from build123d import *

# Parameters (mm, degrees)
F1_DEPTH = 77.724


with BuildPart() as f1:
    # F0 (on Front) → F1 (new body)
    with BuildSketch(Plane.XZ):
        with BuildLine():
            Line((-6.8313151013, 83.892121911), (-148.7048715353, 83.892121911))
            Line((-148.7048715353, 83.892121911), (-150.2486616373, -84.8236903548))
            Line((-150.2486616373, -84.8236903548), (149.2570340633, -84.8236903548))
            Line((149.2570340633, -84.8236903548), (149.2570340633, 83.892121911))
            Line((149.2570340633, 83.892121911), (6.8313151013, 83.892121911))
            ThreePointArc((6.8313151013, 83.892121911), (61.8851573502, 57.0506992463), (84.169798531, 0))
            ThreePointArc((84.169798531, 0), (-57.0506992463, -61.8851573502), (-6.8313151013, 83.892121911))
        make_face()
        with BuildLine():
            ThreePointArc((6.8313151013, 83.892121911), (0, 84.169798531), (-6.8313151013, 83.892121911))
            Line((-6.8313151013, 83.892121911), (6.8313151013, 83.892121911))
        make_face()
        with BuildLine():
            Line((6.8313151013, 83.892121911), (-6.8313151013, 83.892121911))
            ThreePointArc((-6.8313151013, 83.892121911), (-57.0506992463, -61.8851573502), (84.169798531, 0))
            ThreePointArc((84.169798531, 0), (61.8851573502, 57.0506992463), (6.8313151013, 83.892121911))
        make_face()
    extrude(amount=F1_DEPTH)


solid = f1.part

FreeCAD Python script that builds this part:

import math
import FreeCAD as App
import Part
import Sketcher
from FreeCAD import Vector
Q = App.Units.Quantity

doc = App.newDocument("Part")
body = doc.addObject("PartDesign::Body", "Body")

# Sketch on XZ plane
sketch1 = doc.addObject("Sketcher::SketchObject", "Sketch")
body.addObject(sketch1)
sketch1.AttachmentSupport = (doc.XZ_Plane, [""])
sketch1.MapMode = "FlatFace"
sketch1.addGeometry([
    Part.LineSegment(Vector(-6.831315, 83.892122, 0), Vector(-148.704872, 83.892122, 0)),  # 0
    Part.LineSegment(Vector(-148.704872, 83.892122, 0), Vector(-150.248662, -84.82369, 0)),  # 1
    Part.LineSegment(Vector(-150.248662, -84.82369, 0), Vector(149.257034, -84.82369, 0)),  # 2
    Part.LineSegment(Vector(149.257034, -84.82369, 0), Vector(149.257034, 83.892122, 0)),  # 3
    Part.LineSegment(Vector(149.257034, 83.892122, 0), Vector(6.831315, 83.892122, 0)),  # 4
    Part.ArcOfCircle(Part.Circle(Vector(0, 0, 0), Vector(0, 0, 1), 84.169799), math.radians(85.34469), math.radians(94.65531)),  # 5
], False)
sketch1.addConstraint([
    Sketcher.Constraint("Coincident", 0, 2, 1, 1),
    Sketcher.Constraint("Coincident", 1, 2, 2, 1),
    Sketcher.Constraint("Coincident", 2, 2, 3, 1),
    Sketcher.Constraint("Coincident", 3, 2, 4, 1),
    Sketcher.Constraint("Coincident", 4, 2, 5, 1),
    Sketcher.Constraint("Coincident", 5, 2, 0, 1),
    Sketcher.Constraint("Horizontal", 0),
    Sketcher.Constraint("Horizontal", 2),
    Sketcher.Constraint("Vertical", 3),
    Sketcher.Constraint("Horizontal", 4),
    Sketcher.Constraint("Coincident", 5, 3, -1, 1),
    Sketcher.Constraint("Horizontal", 0, 2, 3, 2),
    Sketcher.Constraint("Radius", 5, Q("84.169799 mm")),
    Sketcher.Constraint("DistanceX", 4, 2, 4, 1, Q("142.425719 mm")),
    Sketcher.Constraint("DistanceX", 0, 2, 0, 1, Q("141.873556 mm")),
    Sketcher.Constraint("DistanceX", 2, 1, 2, 2, Q("299.505696 mm")),
    Sketcher.Constraint("DistanceY", 3, 1, 3, 2, Q("168.715812 mm")),
    Sketcher.Constraint("DistanceX", 0, 2, -1, 1, Q("148.704872 mm")),
])
pad1 = doc.addObject("PartDesign::Pad", "Pad")
body.addObject(pad1)
pad1.Profile = sketch1
pad1.Length = Q("3.06 in")

doc.recompute()
